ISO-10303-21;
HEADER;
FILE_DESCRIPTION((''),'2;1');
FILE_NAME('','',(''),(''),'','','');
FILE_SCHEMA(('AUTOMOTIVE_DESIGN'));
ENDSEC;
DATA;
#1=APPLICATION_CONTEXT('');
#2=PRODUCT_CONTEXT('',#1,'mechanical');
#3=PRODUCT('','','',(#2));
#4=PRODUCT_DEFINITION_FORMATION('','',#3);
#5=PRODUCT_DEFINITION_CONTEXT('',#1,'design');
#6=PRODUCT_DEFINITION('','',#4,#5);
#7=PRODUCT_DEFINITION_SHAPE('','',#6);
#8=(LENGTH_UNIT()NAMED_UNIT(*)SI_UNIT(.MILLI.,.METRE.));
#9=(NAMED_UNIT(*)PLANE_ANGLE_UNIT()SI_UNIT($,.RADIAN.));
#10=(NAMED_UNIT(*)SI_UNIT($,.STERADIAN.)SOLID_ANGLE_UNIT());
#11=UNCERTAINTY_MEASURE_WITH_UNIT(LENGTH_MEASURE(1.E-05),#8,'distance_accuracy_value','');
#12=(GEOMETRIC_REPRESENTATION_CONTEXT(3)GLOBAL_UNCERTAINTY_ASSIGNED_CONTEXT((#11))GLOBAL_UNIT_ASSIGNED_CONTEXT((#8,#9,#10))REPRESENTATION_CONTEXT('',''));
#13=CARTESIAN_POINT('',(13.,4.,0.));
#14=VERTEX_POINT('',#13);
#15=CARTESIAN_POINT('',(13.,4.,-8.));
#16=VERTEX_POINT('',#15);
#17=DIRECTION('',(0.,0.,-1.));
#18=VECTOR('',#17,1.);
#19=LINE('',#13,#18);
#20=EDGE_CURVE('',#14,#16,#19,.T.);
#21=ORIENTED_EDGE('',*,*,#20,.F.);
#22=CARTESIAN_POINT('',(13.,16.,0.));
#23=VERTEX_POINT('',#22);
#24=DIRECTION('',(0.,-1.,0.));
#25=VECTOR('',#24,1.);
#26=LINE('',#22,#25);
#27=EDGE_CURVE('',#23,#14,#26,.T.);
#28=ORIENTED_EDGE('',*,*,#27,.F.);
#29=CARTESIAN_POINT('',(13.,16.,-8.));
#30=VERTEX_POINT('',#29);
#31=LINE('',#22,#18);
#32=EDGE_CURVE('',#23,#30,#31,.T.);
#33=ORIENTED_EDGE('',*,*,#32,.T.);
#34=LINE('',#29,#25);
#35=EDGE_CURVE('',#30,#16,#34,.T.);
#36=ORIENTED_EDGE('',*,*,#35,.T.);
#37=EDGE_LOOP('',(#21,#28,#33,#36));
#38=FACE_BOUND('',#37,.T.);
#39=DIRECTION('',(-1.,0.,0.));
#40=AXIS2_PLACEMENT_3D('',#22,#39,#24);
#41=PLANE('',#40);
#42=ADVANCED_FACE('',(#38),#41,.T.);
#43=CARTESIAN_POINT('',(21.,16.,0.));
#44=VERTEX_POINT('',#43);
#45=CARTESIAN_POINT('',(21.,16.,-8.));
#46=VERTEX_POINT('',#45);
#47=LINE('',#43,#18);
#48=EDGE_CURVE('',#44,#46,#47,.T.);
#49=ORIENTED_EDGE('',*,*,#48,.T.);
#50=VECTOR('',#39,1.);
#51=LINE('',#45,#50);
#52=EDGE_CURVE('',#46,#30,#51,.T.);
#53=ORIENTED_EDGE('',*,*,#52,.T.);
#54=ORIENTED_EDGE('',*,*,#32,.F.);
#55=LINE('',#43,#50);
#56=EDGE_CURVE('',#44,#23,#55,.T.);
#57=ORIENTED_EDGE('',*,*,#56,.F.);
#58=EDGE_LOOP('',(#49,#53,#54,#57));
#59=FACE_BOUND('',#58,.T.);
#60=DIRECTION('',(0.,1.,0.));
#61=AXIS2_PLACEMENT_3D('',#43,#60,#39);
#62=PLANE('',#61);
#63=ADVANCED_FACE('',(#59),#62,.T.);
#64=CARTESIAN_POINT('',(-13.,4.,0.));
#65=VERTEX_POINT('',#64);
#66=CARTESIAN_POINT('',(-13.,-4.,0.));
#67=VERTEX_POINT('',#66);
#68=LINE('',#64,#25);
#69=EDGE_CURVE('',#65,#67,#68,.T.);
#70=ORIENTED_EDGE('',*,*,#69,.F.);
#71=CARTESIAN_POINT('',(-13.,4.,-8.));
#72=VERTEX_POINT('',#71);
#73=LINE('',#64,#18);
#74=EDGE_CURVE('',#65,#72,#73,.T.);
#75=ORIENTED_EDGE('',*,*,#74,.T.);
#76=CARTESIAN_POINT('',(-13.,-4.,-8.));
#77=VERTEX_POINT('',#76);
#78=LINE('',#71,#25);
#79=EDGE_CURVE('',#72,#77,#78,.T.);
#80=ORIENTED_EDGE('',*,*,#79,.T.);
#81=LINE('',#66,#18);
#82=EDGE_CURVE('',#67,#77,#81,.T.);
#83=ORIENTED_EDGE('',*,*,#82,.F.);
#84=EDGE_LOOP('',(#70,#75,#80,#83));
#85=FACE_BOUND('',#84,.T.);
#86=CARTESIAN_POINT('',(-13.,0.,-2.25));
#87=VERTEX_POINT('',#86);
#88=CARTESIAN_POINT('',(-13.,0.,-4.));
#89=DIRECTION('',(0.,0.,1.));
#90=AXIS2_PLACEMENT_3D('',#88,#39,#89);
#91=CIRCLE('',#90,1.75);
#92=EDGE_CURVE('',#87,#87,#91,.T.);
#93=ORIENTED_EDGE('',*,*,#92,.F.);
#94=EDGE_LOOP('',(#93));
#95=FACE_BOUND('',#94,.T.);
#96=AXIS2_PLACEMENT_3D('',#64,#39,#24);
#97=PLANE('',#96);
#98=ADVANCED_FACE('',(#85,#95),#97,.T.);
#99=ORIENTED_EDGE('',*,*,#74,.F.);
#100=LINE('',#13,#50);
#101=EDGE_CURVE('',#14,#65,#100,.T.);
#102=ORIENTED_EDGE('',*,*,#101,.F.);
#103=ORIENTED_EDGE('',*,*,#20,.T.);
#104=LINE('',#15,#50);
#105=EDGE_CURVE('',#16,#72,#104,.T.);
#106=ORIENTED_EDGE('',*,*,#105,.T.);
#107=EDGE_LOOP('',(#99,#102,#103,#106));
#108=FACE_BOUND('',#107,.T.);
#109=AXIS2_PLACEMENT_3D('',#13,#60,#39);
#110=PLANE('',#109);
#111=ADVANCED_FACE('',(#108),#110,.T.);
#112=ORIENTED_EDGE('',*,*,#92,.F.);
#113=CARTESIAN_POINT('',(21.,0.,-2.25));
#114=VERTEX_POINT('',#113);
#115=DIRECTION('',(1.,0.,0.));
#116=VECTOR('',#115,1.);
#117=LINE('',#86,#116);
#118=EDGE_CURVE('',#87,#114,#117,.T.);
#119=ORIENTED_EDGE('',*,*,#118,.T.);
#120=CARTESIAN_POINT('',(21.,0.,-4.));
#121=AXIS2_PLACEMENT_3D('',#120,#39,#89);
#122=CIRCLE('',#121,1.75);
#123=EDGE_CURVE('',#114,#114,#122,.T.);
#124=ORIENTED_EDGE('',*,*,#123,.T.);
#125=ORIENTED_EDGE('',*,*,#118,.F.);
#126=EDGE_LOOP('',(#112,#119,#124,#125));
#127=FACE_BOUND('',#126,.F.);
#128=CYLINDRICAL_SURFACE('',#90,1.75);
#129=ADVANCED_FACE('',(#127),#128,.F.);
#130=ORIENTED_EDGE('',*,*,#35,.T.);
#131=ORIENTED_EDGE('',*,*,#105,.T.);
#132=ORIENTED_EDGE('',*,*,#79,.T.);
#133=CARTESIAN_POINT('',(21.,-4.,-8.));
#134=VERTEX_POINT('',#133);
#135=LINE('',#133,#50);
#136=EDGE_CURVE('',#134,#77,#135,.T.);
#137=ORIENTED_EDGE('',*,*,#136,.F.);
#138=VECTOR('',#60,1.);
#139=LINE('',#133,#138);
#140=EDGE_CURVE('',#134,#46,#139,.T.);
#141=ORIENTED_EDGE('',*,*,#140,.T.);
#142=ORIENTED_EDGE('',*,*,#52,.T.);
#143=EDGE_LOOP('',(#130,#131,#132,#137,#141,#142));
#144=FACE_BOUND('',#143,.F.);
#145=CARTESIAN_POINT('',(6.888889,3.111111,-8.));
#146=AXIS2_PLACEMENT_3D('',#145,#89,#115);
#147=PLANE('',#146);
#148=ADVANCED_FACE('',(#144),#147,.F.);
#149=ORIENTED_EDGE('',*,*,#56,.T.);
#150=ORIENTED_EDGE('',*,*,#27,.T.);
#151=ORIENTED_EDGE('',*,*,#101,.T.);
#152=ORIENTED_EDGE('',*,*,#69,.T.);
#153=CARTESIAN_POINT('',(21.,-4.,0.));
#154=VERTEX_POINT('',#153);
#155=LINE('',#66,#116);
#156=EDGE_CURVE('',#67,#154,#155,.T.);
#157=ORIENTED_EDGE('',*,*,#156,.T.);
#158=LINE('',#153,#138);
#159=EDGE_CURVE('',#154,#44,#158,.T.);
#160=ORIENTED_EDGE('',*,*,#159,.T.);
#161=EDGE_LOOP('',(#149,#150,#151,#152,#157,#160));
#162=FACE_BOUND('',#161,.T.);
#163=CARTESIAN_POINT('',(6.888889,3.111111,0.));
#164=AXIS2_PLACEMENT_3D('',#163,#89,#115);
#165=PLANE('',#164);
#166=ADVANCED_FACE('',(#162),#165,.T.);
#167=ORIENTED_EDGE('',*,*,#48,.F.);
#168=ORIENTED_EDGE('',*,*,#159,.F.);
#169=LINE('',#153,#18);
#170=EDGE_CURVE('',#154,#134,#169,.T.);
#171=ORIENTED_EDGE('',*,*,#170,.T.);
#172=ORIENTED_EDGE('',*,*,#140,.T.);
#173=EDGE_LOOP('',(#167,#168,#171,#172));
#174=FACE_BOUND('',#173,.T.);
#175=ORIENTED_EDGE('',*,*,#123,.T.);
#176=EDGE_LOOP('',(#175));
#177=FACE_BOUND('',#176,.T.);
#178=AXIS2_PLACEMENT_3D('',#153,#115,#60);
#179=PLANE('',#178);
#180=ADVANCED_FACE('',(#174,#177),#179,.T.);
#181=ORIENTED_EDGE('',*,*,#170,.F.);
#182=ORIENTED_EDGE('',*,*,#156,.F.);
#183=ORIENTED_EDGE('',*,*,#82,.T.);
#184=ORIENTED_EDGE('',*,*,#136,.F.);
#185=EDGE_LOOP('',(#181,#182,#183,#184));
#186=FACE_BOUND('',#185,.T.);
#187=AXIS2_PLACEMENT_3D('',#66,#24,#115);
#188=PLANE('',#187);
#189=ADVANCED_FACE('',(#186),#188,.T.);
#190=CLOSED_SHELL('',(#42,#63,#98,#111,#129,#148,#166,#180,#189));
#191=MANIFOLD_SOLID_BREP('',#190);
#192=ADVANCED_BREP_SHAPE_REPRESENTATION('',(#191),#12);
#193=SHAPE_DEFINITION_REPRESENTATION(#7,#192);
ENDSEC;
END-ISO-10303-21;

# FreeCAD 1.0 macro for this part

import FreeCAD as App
import Part
import Sketcher

V = App.Vector

doc = App.newDocument("Part")
body = doc.addObject("PartDesign::Body", "Body")

# Sketch on XY plane
sketch1 = body.newObject("Sketcher::SketchObject", "Sketch")
sketch1.AttachmentSupport = (doc.getObject("XY_Plane"), [""])
sketch1.MapMode = "FlatFace"
sketch1.addGeometry(Part.LineSegment(V(13, 16, 0), V(13, 4, 0)), False)
sketch1.addGeometry(Part.LineSegment(V(13, 4, 0), V(-13, 4, 0)), False)
sketch1.addGeometry(Part.LineSegment(V(-13, 4, 0), V(-13, -4, 0)), False)
sketch1.addGeometry(Part.LineSegment(V(-13, -4, 0), V(21, -4, 0)), False)
sketch1.addGeometry(Part.LineSegment(V(21, -4, 0), V(21, 16, 0)), False)
sketch1.addGeometry(Part.LineSegment(V(21, 16, 0), V(13, 16, 0)), False)
sketch1.addConstraint(Sketcher.Constraint("Coincident", 0, 2, 1, 1))
sketch1.addConstraint(Sketcher.Constraint("Coincident", 1, 2, 2, 1))
sketch1.addConstraint(Sketcher.Constraint("Coincident", 2, 2, 3, 1))
sketch1.addConstraint(Sketcher.Constraint("Coincident", 3, 2, 4, 1))
sketch1.addConstraint(Sketcher.Constraint("Coincident", 4, 2, 5, 1))
sketch1.addConstraint(Sketcher.Constraint("Coincident", 5, 2, 0, 1))
sketch1.addConstraint(Sketcher.Constraint("Vertical", 0))
sketch1.addConstraint(Sketcher.Constraint("Horizontal", 1))
sketch1.addConstraint(Sketcher.Constraint("Vertical", 2))
sketch1.addConstraint(Sketcher.Constraint("Horizontal", 3))
sketch1.addConstraint(Sketcher.Constraint("Vertical", 4))
sketch1.addConstraint(Sketcher.Constraint("Horizontal", 5))
sketch1.addConstraint(Sketcher.Constraint("Symmetric", 0, 2, 2, 2, -1, 1))
sketch1.addConstraint(Sketcher.Constraint("Equal", 5, 2))
sketch1.addConstraint(Sketcher.Constraint("DistanceX", 1, 2, 1, 1, 26.0))
sketch1.addConstraint(Sketcher.Constraint("DistanceX", 3, 1, 3, 2, 34.0))
sketch1.addConstraint(Sketcher.Constraint("DistanceY", 0, 2, 0, 1, 12.0))
pad1 = body.newObject("PartDesign::Pad", "Pad")
pad1.Profile = sketch1
pad1.Length = 8
pad1.Reversed = True

# Sketch on YZ plane
sketch2 = body.newObject("Sketcher::SketchObject", "Sketch001")
sketch2.AttachmentSupport = (doc.getObject("YZ_Plane"), [""])
sketch2.MapMode = "FlatFace"
sketch2.AttachmentOffset = App.Placement(V(0, 0, -13), App.Rotation())
sketch2.addGeometry(Part.Circle(V(0, -4, 0), V(0, 0, 1), 1.8), False)
sketch2.addConstraint(Sketcher.Constraint("PointOnObject", 0, 3, -2))
sketch2.addConstraint(Sketcher.Constraint("Diameter", 0, 3.5))
sketch2.addConstraint(Sketcher.Constraint("DistanceY", 0, 3, -1, 1, 4.0))
pocket1 = body.newObject("PartDesign::Pocket", "Pocket")
pocket1.Profile = sketch2
pocket1.Length = 38.1
pocket1.Reversed = True

doc.recompute()
